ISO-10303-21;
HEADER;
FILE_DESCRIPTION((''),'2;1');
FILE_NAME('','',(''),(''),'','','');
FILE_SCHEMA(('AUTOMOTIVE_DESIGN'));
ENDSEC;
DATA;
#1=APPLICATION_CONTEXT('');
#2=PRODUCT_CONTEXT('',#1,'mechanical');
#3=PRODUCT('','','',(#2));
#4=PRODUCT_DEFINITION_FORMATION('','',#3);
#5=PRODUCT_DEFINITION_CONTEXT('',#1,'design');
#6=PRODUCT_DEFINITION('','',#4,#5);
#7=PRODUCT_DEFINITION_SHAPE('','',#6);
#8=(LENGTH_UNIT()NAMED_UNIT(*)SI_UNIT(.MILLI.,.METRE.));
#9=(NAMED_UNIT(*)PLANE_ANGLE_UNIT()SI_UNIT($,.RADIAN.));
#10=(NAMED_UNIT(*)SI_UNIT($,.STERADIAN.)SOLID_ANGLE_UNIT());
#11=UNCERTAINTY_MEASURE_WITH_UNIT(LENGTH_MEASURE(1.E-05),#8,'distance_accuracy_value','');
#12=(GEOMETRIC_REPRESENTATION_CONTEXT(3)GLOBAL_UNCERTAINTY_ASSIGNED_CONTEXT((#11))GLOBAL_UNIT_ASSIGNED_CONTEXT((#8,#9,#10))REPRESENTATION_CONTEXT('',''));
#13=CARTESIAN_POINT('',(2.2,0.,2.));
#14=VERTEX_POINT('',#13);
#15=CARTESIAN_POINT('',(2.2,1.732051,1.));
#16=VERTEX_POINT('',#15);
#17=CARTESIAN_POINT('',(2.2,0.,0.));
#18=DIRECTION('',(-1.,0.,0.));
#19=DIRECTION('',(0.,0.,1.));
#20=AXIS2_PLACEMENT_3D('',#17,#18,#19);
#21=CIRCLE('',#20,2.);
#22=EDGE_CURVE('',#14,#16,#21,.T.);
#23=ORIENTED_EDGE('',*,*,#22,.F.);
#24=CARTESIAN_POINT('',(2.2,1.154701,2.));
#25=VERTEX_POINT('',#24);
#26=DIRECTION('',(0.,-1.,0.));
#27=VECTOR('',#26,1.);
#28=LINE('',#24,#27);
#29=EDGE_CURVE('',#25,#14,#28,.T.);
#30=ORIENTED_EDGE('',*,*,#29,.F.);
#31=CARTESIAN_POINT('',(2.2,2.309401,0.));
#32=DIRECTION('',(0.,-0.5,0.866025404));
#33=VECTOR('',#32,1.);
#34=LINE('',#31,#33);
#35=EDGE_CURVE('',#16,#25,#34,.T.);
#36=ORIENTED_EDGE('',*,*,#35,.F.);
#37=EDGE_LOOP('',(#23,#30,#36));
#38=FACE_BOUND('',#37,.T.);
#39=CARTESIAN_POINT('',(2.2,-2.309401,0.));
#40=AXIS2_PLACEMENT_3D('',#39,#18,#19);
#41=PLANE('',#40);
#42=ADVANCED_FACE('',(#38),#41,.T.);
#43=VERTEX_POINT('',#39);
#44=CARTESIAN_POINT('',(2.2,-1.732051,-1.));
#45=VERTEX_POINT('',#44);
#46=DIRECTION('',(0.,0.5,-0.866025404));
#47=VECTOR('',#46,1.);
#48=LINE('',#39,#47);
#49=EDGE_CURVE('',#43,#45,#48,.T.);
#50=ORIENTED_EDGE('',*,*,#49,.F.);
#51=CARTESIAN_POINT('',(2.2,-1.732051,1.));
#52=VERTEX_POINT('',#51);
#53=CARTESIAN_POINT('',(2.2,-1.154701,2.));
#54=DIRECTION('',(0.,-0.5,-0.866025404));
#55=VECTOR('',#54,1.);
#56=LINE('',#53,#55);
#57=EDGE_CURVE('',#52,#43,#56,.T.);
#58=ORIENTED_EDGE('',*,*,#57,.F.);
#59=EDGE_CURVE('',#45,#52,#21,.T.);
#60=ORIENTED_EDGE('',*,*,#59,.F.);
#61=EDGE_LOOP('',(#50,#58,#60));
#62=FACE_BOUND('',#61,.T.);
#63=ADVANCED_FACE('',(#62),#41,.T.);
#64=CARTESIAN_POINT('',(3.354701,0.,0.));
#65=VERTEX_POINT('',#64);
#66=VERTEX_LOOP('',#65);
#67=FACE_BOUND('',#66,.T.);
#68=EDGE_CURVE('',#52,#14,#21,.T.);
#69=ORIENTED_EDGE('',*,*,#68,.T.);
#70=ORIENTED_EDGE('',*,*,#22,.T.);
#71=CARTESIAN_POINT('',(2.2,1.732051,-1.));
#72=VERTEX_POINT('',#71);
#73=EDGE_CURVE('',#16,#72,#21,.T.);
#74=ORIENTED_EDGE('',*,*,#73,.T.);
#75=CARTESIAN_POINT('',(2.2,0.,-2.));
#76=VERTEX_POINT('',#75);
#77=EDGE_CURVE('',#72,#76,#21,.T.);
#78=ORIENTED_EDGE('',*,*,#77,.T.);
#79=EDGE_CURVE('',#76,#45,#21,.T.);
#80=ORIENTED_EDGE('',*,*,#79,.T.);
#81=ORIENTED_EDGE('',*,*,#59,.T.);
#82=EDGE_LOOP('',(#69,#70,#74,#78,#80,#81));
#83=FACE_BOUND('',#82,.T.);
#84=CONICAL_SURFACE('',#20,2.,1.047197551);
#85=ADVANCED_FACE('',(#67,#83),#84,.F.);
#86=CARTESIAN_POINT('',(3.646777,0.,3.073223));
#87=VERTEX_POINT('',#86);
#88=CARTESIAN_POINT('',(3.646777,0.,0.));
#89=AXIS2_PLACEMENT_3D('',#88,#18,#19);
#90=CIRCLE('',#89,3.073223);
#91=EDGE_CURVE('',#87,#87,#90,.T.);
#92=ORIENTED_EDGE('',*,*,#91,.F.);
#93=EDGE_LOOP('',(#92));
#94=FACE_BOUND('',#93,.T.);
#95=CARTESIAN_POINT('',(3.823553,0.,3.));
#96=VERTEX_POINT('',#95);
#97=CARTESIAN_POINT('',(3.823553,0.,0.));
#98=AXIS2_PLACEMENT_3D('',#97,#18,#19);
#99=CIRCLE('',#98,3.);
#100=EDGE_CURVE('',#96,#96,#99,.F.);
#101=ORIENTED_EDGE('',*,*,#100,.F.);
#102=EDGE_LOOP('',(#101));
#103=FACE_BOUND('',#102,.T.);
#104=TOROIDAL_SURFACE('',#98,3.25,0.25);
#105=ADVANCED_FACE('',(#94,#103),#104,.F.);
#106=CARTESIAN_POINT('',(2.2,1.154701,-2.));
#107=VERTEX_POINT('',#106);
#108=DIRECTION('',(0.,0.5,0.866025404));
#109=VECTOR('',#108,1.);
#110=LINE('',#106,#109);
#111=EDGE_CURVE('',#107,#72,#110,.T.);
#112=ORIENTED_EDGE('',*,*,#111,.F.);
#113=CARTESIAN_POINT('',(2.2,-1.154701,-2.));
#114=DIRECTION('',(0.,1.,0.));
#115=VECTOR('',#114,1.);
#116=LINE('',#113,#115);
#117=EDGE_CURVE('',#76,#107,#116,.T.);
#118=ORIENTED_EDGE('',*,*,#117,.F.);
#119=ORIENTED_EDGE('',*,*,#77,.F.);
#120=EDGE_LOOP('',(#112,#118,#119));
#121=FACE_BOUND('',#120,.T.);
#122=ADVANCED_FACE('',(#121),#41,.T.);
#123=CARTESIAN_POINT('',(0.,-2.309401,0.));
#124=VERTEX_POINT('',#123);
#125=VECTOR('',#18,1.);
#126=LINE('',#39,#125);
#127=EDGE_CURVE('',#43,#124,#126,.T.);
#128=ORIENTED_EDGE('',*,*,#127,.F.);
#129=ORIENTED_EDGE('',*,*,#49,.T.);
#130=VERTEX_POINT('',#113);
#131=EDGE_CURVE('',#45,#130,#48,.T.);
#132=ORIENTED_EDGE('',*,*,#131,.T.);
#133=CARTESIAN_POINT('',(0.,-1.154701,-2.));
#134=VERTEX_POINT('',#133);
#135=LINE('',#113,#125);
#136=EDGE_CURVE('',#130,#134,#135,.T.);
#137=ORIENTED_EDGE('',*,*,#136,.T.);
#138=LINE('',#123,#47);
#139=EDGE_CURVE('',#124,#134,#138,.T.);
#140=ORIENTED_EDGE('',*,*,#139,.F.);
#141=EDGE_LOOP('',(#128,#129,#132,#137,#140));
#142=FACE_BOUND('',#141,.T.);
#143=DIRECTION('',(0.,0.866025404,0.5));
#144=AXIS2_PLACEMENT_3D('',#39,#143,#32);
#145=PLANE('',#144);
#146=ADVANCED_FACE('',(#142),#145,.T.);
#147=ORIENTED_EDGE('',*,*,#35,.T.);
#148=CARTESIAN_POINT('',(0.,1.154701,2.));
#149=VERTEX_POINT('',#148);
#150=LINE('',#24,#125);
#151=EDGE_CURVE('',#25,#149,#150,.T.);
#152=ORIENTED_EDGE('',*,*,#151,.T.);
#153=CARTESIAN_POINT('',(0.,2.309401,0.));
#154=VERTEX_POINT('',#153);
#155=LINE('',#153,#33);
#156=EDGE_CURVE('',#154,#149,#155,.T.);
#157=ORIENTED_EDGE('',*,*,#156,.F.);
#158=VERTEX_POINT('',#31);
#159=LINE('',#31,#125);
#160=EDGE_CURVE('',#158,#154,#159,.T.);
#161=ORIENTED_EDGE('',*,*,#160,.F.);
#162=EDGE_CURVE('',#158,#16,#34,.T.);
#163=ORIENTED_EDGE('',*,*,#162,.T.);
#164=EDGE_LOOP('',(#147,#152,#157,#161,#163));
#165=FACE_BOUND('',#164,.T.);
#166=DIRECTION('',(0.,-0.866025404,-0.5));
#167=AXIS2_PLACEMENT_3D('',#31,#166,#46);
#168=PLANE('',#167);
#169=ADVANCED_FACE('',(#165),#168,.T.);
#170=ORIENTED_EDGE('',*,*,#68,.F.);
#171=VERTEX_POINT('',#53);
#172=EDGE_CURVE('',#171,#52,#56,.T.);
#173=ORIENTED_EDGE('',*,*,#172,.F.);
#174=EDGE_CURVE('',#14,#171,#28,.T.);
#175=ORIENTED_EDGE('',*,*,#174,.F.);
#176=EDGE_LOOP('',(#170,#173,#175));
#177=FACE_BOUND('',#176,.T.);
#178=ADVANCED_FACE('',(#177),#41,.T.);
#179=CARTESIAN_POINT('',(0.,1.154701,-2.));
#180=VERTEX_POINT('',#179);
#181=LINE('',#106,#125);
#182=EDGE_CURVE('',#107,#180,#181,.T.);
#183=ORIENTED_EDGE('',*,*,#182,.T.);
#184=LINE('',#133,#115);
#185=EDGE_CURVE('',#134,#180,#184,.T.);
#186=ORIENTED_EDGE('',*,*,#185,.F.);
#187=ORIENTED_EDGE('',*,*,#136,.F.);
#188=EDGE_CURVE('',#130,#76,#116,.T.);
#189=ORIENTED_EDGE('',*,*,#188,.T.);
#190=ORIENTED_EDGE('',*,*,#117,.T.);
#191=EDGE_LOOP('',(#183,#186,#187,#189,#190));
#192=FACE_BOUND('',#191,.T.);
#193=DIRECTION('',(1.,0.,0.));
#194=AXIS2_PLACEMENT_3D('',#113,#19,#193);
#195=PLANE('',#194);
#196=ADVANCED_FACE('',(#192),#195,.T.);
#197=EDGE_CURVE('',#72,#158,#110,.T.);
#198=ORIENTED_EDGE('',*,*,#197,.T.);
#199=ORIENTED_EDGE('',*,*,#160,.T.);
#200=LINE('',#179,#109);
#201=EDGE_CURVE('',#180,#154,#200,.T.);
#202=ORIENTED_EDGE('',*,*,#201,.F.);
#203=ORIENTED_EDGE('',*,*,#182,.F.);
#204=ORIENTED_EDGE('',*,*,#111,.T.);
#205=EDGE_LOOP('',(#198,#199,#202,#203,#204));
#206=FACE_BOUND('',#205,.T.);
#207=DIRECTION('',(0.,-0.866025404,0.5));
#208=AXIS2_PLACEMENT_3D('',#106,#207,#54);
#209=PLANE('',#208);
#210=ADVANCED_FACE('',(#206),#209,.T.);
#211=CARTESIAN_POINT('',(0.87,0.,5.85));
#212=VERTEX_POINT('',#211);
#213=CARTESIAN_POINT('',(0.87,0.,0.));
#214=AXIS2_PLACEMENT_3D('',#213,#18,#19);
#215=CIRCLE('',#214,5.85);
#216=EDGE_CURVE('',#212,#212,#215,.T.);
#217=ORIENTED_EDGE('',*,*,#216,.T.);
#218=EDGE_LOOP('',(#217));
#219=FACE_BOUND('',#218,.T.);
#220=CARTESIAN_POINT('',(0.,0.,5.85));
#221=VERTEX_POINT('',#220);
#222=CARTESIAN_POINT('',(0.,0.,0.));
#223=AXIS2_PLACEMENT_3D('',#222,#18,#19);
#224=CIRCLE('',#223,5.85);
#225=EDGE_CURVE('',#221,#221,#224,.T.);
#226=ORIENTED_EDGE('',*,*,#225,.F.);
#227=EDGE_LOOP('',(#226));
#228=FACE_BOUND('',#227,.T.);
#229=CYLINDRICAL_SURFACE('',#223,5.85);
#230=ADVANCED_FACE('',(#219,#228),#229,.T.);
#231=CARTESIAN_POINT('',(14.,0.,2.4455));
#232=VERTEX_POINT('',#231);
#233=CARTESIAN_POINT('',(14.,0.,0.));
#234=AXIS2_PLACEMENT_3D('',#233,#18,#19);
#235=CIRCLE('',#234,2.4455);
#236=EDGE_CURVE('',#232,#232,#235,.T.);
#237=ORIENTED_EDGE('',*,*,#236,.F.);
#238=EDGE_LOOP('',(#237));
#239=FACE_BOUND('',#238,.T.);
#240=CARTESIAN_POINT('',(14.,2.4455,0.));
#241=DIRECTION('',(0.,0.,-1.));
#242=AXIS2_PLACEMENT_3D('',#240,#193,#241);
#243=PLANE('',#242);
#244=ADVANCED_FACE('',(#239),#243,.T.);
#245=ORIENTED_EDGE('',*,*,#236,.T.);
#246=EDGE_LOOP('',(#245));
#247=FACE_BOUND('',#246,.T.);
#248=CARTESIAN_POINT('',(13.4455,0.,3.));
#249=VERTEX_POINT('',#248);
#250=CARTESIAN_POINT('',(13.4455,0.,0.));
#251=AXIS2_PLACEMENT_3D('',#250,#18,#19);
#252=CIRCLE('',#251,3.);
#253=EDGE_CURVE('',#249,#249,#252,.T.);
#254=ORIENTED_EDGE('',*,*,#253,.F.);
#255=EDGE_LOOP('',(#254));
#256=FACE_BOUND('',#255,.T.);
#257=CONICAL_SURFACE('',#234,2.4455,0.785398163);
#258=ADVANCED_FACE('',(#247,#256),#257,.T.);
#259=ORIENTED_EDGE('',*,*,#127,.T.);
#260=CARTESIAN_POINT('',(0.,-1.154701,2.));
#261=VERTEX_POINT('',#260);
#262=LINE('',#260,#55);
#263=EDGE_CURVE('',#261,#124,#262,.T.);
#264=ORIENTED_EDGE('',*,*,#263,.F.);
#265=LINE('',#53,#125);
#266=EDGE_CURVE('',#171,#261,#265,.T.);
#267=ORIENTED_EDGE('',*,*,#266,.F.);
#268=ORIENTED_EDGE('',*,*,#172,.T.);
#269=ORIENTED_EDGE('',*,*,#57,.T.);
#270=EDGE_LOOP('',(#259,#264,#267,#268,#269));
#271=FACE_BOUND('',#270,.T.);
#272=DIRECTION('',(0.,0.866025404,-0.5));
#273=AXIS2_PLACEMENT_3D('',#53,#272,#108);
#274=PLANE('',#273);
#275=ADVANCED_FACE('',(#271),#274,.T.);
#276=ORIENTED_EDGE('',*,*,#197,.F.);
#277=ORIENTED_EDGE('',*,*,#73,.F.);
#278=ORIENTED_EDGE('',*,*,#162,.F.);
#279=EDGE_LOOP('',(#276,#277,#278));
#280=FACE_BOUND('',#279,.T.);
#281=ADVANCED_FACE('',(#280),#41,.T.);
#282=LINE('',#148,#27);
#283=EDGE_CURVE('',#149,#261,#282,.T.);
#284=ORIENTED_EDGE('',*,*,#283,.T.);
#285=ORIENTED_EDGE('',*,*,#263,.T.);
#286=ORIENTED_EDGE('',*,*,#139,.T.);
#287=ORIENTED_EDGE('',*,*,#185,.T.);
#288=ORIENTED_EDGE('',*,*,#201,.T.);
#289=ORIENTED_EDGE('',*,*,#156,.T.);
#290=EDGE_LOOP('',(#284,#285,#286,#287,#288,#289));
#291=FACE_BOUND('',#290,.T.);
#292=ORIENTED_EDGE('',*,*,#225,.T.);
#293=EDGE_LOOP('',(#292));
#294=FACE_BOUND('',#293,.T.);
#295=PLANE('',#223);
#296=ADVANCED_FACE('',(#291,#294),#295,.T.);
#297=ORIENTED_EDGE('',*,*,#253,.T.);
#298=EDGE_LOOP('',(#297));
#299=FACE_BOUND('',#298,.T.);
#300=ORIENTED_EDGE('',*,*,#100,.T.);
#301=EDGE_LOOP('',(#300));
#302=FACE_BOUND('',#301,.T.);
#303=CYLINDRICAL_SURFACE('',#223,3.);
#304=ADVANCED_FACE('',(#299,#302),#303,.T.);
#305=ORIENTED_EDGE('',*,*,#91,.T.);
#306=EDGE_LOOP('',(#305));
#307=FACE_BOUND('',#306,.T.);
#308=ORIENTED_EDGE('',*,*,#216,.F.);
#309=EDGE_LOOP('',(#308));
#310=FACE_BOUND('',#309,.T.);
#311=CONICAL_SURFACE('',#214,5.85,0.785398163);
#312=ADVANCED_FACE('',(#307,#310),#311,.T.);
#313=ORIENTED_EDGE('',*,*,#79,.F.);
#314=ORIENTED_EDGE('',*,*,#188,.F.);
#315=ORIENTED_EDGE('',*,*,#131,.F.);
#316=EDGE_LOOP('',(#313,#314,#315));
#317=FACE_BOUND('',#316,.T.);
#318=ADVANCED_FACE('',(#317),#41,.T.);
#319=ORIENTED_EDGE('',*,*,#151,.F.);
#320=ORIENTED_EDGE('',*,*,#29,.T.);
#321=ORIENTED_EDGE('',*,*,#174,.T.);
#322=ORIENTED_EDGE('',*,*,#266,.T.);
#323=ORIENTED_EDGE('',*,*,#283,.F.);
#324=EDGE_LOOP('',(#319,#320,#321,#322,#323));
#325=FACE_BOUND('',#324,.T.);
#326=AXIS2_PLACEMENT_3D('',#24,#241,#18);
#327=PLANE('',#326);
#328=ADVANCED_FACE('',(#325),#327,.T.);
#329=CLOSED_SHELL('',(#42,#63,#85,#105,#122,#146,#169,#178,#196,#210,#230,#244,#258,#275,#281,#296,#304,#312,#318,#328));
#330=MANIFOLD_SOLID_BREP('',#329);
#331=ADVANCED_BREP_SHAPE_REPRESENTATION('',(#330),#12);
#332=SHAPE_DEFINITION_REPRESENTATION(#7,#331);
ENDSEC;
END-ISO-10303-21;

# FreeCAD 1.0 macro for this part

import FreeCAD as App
import Part
import Sketcher

V = App.Vector
Q = App.Units.Quantity


def edges_at(feature, points):
    """Names of the edges that pass closest to the given points."""
    edges = feature.Shape.Edges
    near = lambda p: min(range(len(edges)), key=lambda i: edges[i].distToShape(Part.Vertex(*p))[0])
    return sorted({f"Edge{near(p) + 1}" for p in points})

doc = App.newDocument("Part")
body = doc.addObject("PartDesign::Body", "Body")

# Sketch on XY plane
sketch1 = doc.addObject("Sketcher::SketchObject", "Sketch")
body.addObject(sketch1)
sketch1.AttachmentSupport = (doc.XY_Plane, [""])
sketch1.MapMode = "FlatFace"
sketch1.addGeometry([
    Part.LineSegment(V(0, 5.8, 0), V(0, 0, 0)),  # 0
    Part.LineSegment(V(0, 0, 0), V(14, 0, 0)),  # 1
    Part.LineSegment(V(14, 0, 0), V(14, 2.4, 0)),  # 2
    Part.LineSegment(V(14, 2.4, 0), V(13.4, 3, 0)),  # 3
    Part.LineSegment(V(13.4, 3, 0), V(3.7, 3, 0)),  # 4
    Part.LineSegment(V(3.7, 3, 0), V(0.9, 5.8, 0)),  # 5
    Part.LineSegment(V(0.9, 5.8, 0), V(0, 5.8, 0)),  # 6
], False)
sketch1.addConstraint([
    Sketcher.Constraint("Coincident", 0, 2, 1, 1),
    Sketcher.Constraint("Coincident", 1, 2, 2, 1),
    Sketcher.Constraint("Coincident", 2, 2, 3, 1),
    Sketcher.Constraint("Coincident", 3, 2, 4, 1),
    Sketcher.Constraint("Coincident", 4, 2, 5, 1),
    Sketcher.Constraint("Coincident", 5, 2, 6, 1),
    Sketcher.Constraint("Coincident", 6, 2, 0, 1),
    Sketcher.Constraint("Vertical", 0),
    Sketcher.Constraint("Horizontal", 1),
    Sketcher.Constraint("Vertical", 2),
    Sketcher.Constraint("Horizontal", 4),
    Sketcher.Constraint("Horizontal", 6),
    Sketcher.Constraint("Coincident", 0, 2, -1, 1),
    Sketcher.Constraint("Parallel", 3, 5),
    Sketcher.Constraint("DistanceX", 1, 1, 1, 2, 14.0),
    Sketcher.Constraint("Angle", 3, Q("135 deg")),
    Sketcher.Constraint("DistanceY", -1, 1, 3, 2, 3.0),
    Sketcher.Constraint("DistanceX", 6, 2, 6, 1, 0.87),
    Sketcher.Constraint("DistanceY", 0, 2, 0, 1, 5.85),
    Sketcher.Constraint("DistanceX", 4, 2, 4, 1, 9.7255),
])
revolution = doc.addObject("PartDesign::Revolution", "Revolution")
body.addObject(revolution)
revolution.Profile = sketch1
revolution.ReferenceAxis = (sketch1, ["H_Axis"])
revolution.Angle = 360
doc.recompute()

fillet = doc.addObject("PartDesign::Fillet", "Fillet")
body.addObject(fillet)
fillet.Base = (revolution, edges_at(revolution, [(3.72, 0, -3)]))
fillet.Radius = 0.25

# Sketch on XY plane
sketch2 = doc.addObject("Sketcher::SketchObject", "Sketch001")
body.addObject(sketch2)
sketch2.AttachmentSupport = (doc.XY_Plane, [""])
sketch2.MapMode = "FlatFace"
sketch2.addGeometry([
    Part.LineSegment(V(2.2, 2, 0), V(0, 2, 0)),
    Part.LineSegment(V(0, 2, 0), V(0, 0, 0)),
    Part.LineSegment(V(0, 0, 0), V(3.4, 0, 0)),
    Part.LineSegment(V(3.4, 0, 0), V(2.2, 2, 0)),
], False)
sketch2.addConstraint([
    Sketcher.Constraint("Coincident", 0, 2, 1, 1),
    Sketcher.Constraint("Coincident", 1, 2, 2, 1),
    Sketcher.Constraint("Coincident", 2, 2, 3, 1),
    Sketcher.Constraint("Coincident", 3, 2, 0, 1),
    Sketcher.Constraint("Horizontal", 0),
    Sketcher.Constraint("Vertical", 1),
    Sketcher.Constraint("Horizontal", 2),
    Sketcher.Constraint("Coincident", 1, 2, -1, 1),
    Sketcher.Constraint("DistanceY", 1, 2, 1, 1, 2.0),
    Sketcher.Constraint("Angle", 3, Q("120 deg")),
    Sketcher.Constraint("DistanceX", 0, 2, 0, 1, 2.2),
])
groove = doc.addObject("PartDesign::Groove", "Groove")
body.addObject(groove)
groove.Profile = sketch2
groove.ReferenceAxis = (sketch2, ["H_Axis"])
groove.Angle = 360

# Sketch on YZ plane
sketch3 = doc.addObject("Sketcher::SketchObject", "Sketch002")
body.addObject(sketch3)
sketch3.AttachmentSupport = (doc.YZ_Plane, [""])
sketch3.MapMode = "FlatFace"
sketch3.addGeometry([
    Part.LineSegment(V(1.2, -2, 0), V(-1.2, -2, 0)),  # 0
    Part.LineSegment(V(-1.2, -2, 0), V(-2.3, 0, 0)),  # 1
    Part.LineSegment(V(-2.3, 0, 0), V(-1.2, 2, 0)),  # 2
    Part.LineSegment(V(-1.2, 2, 0), V(1.2, 2, 0)),  # 3
    Part.LineSegment(V(1.2, 2, 0), V(2.3, 0, 0)),  # 4
    Part.LineSegment(V(2.3, 0, 0), V(1.2, -2, 0)),  # 5
], False)
sketch3.addConstraint([
    Sketcher.Constraint("Coincident", 0, 2, 1, 1),
    Sketcher.Constraint("Coincident", 1, 2, 2, 1),
    Sketcher.Constraint("Coincident", 2, 2, 3, 1),
    Sketcher.Constraint("Coincident", 3, 2, 4, 1),
    Sketcher.Constraint("Coincident", 4, 2, 5, 1),
    Sketcher.Constraint("Coincident", 5, 2, 0, 1),
    Sketcher.Constraint("Horizontal", 0),
    Sketcher.Constraint("Horizontal", 3),
    Sketcher.Constraint("Symmetric", 0, 2, 3, 2, -1, 1),
    Sketcher.Constraint("Symmetric", 1, 2, 4, 2, -1, 1),
    Sketcher.Constraint("PointOnObject", 1, 2, -1),
    Sketcher.Constraint("Parallel", 2, 5),
    Sketcher.Constraint("Vertical", 0, 2, 2, 2),
    Sketcher.Constraint("Angle", 1, Q("120 deg")),
    Sketcher.Constraint("DistanceY", 0, 2, -1, 1, 2.0),
    Sketcher.Constraint("DistanceX", 0, 2, 0, 1, 2.309401),
])
pocket1 = doc.addObject("PartDesign::Pocket", "Pocket")
body.addObject(pocket1)
pocket1.Profile = sketch3
pocket1.Length = 2.2
pocket1.Reversed = True

doc.recompute()
